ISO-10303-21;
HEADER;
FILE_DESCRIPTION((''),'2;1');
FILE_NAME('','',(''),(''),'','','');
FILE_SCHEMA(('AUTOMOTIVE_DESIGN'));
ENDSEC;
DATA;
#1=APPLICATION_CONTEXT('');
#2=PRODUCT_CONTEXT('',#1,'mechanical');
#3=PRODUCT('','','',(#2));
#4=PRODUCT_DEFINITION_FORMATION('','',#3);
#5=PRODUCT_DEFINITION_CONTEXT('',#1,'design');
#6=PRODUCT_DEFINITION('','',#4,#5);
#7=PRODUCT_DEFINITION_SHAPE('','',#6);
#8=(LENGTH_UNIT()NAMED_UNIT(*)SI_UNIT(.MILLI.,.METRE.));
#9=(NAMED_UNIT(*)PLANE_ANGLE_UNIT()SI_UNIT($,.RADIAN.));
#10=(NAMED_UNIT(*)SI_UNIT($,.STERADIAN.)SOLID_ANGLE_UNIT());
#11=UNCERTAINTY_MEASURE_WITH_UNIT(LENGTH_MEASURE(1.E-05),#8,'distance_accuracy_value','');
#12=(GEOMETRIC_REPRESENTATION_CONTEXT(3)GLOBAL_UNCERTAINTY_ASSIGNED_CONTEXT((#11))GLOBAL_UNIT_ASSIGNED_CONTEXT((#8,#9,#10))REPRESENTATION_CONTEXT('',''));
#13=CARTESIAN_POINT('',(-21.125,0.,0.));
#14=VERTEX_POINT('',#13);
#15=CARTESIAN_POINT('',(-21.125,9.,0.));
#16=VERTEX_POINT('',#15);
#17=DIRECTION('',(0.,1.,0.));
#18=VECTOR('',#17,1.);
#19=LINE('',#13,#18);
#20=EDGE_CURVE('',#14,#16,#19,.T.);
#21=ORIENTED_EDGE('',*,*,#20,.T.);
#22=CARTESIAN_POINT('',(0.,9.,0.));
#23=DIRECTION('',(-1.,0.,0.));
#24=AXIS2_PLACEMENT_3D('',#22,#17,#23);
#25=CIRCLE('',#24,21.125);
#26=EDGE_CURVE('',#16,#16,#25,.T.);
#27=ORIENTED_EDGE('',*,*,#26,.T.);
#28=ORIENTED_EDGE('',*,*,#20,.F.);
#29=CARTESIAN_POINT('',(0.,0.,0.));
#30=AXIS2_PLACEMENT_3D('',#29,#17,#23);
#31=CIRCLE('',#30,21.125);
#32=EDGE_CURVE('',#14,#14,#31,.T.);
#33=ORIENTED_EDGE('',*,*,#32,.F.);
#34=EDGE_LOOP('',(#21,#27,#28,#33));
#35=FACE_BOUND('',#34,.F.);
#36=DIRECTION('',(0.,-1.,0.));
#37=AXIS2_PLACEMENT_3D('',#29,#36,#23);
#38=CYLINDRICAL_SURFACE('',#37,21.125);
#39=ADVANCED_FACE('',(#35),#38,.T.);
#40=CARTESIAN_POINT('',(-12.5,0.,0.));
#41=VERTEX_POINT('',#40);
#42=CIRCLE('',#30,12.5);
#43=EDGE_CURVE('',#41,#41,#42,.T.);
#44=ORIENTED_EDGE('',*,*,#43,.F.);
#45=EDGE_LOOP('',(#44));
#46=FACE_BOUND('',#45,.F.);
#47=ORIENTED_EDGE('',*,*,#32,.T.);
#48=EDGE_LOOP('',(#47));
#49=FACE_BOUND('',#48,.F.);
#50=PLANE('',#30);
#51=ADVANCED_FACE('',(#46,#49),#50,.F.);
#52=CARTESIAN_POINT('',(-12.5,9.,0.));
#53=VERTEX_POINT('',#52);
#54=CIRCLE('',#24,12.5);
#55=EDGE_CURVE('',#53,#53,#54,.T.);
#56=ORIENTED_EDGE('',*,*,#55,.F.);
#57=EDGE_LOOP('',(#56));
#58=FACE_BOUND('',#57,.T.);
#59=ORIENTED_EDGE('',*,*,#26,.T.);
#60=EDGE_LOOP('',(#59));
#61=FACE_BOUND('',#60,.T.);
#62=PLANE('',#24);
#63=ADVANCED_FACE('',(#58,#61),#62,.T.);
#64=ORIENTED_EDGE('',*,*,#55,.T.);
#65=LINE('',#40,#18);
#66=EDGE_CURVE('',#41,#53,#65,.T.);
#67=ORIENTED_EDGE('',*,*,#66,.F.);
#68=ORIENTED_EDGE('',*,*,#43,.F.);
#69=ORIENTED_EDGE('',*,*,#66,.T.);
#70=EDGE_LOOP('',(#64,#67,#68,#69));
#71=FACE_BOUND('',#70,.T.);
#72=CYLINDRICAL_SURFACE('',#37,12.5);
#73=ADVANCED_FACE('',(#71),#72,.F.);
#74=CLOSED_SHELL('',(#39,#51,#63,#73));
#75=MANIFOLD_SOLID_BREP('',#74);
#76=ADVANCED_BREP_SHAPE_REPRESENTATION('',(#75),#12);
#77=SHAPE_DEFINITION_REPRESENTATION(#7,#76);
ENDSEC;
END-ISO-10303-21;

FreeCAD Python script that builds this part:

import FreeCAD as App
import Part
import Sketcher

doc = App.newDocument("Part")
params = doc.addObject("Spreadsheet::Sheet", "Params")
for row, (alias, value) in enumerate([
    ("sketch1_diameter", "25 mm"),
    ("sketch1_diameter2", "42.25 mm"),
    ("pad1_length", "9 mm"),
], start=1):
    params.set(f"A{row}", alias)
    params.set(f"B{row}", "=" + value)
    params.setAlias(f"B{row}", alias)

body = doc.addObject("PartDesign::Body", "Body")

# Sketch on XZ plane
sketch1 = body.newObject("Sketcher::SketchObject", "Sketch")
sketch1.AttachmentSupport = (doc.getObject("XZ_Plane"), [""])
sketch1.MapMode = "FlatFace"
sketch1.addGeometry(Part.Circle(App.Vector(0, 0, 0), App.Vector(0, 0, 1), 21), False)
sketch1.addGeometry(Part.Circle(App.Vector(0, 0, 0), App.Vector(0, 0, 1), 12), False)
sketch1.addConstraint(Sketcher.Constraint("Coincident", 0, 3, -1, 1))
sketch1.addConstraint(Sketcher.Constraint("Coincident", 1, 3, -1, 1))
sketch1.addConstraint(Sketcher.Constraint("Diameter", 1, 25.0))
sketch1.addConstraint(Sketcher.Constraint("Diameter", 0, 42.25))
sketch1.setExpression("Constraints[2]", "Params.sketch1_diameter")
sketch1.setExpression("Constraints[3]", "Params.sketch1_diameter2")
pad1 = body.newObject("PartDesign::Pad", "Pad")
pad1.Profile = sketch1
pad1.setExpression("Length", "Params.pad1_length")
pad1.Reversed = True

doc.recompute()
